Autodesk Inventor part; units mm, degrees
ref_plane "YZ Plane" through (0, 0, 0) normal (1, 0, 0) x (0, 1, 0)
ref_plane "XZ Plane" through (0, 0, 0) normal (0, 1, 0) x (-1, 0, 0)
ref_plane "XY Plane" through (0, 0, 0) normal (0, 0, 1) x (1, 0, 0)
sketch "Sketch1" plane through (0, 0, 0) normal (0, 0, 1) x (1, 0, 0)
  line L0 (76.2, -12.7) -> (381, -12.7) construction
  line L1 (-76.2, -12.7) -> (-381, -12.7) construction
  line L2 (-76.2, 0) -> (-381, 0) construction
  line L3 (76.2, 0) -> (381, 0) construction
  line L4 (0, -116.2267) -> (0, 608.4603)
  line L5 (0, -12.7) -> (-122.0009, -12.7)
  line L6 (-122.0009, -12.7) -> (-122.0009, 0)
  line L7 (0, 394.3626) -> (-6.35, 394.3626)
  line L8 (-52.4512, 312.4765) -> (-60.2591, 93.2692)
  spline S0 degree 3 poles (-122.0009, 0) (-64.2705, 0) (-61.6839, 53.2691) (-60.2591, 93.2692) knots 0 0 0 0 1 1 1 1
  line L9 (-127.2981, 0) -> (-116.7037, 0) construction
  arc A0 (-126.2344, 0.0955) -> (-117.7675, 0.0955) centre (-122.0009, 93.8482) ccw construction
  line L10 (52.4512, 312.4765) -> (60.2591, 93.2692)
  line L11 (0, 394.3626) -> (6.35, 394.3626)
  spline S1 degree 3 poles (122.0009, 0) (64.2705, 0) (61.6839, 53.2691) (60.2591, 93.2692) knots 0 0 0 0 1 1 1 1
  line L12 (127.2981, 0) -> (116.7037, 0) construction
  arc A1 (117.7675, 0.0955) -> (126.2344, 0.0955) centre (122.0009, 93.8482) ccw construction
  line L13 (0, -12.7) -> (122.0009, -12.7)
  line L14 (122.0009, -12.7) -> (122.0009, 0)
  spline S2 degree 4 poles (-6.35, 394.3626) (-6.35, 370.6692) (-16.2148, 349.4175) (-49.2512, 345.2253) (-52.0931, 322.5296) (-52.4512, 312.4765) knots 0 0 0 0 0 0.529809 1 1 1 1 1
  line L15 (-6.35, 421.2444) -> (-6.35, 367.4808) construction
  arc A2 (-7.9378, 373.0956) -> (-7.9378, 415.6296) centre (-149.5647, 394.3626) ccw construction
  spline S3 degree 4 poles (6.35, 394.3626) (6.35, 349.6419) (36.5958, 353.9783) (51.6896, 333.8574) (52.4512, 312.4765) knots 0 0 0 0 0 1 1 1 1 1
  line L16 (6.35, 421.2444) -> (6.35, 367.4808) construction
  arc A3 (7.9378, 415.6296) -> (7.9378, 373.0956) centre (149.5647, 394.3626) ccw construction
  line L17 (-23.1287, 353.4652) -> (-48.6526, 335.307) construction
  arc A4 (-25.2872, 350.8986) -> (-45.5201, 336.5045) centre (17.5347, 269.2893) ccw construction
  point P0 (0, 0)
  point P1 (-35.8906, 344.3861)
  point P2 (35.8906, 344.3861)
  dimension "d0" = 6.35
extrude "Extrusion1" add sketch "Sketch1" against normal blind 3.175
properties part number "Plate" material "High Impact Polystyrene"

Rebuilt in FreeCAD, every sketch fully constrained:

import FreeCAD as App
import Part
import Sketcher

V = App.Vector
Q = App.Units.Quantity

doc = App.newDocument("Part")
body = doc.addObject("PartDesign::Body", "Body")

# Sketch on XY plane
sketch1 = body.newObject("Sketcher::SketchObject", "Sketch")
sketch1.AttachmentSupport = (doc.getObject("XY_Plane"), [""])
sketch1.MapMode = "FlatFace"
sketch1.addGeometry([
    Part.LineSegment(V(-122.0009, -12.7, 0), V(122.0009, -12.7, 0)),  # 0
    Part.LineSegment(V(122.0009, -12.7, 0), V(122.0009, 0, 0)),  # 1
    Part.BSplineCurve([V(122.0009, 0, 0), V(64.2705, 0, 0), V(61.6839, 53.2691, 0), V(60.2591, 93.2692, 0)], [4, 4], [0, 1], False, 3, [1, 1, 1, 1], False),  # 2
    Part.LineSegment(V(60.2591, 93.2692, 0), V(52.4512, 312.4765, 0)),  # 3
    Part.BSplineCurve([V(6.35, 394.3626, 0), V(6.35, 349.6419, 0), V(36.5958, 353.9783, 0), V(51.6896, 333.8574, 0), V(52.4512, 312.4765, 0)], [5, 5], [0, 1], False, 4, [1, 1, 1, 1, 1], False),  # 4
    Part.LineSegment(V(6.35, 394.3626, 0), V(-6.35, 394.3626, 0)),  # 5
    Part.BSplineCurve([V(-6.35, 394.3626, 0), V(-6.35, 370.6692, 0), V(-16.2148, 349.4175, 0), V(-49.2512, 345.2253, 0), V(-52.0931, 322.5296, 0), V(-52.4512, 312.4765, 0)], [5, 1, 5], [0, 0.529809, 1], False, 4, [1, 1, 1, 1, 1, 1], False),  # 6
    Part.LineSegment(V(-52.4512, 312.4765, 0), V(-60.2591, 93.2692, 0)),  # 7
    Part.BSplineCurve([V(-122.0009, 0, 0), V(-64.2705, 0, 0), V(-61.6839, 53.2691, 0), V(-60.2591, 93.2692, 0)], [4, 4], [0, 1], False, 3, [1, 1, 1, 1], False),  # 8
    Part.LineSegment(V(-122.0009, 0, 0), V(-122.0009, -12.7, 0)),  # 9
], False)
sketch1.addConstraint([
    Sketcher.Constraint("Block", 2),
    Sketcher.Constraint("Block", 4),
    Sketcher.Constraint("Block", 6),
    Sketcher.Constraint("Block", 8),
    Sketcher.Constraint("Coincident", 0, 2, 1, 1),
    Sketcher.Constraint("Coincident", 1, 2, 2, 1),
    Sketcher.Constraint("Coincident", 2, 2, 3, 1),
    Sketcher.Constraint("Coincident", 3, 2, 4, 2),
    Sketcher.Constraint("Coincident", 4, 1, 5, 1),
    Sketcher.Constraint("Coincident", 5, 2, 6, 1),
    Sketcher.Constraint("Coincident", 6, 2, 7, 1),
    Sketcher.Constraint("Coincident", 7, 2, 8, 2),
    Sketcher.Constraint("Coincident", 8, 1, 9, 1),
    Sketcher.Constraint("Coincident", 9, 2, 0, 1),
    Sketcher.Constraint("Horizontal", 0),
    Sketcher.Constraint("Vertical", 1),
    Sketcher.Constraint("Vertical", 9),
    Sketcher.Constraint("Equal", 5, 1),
])
pad1 = body.newObject("PartDesign::Pad", "Pad")
pad1.Profile = sketch1
pad1.Length = Q("0.125 in")
pad1.Reversed = True

doc.recompute()
